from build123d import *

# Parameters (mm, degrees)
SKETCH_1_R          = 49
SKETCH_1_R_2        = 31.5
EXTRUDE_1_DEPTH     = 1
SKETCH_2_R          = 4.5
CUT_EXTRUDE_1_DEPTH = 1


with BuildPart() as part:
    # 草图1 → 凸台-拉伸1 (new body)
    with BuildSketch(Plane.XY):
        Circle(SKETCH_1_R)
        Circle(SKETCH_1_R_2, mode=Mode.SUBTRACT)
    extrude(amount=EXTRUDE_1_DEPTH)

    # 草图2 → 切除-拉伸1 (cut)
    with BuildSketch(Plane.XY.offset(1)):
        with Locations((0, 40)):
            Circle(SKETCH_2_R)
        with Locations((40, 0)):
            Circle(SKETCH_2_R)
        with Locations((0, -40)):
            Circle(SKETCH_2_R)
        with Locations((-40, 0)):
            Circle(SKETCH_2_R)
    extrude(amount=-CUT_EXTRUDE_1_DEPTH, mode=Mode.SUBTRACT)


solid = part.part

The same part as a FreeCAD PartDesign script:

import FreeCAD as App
import Part
import Sketcher
from FreeCAD import Vector

doc = App.newDocument("Part")
params = doc.addObject("Spreadsheet::Sheet", "Params")
for row, (alias, value) in enumerate([
    ("sketch1_diameter", "98 mm"),
    ("sketch1_diameter2", "63 mm"),
    ("pad1_length", "1 mm"),
    ("sketch2_diameter", "9 mm"),
    ("pocket1_length", "1 mm"),
], start=1):
    params.set(f"A{row}", alias)
    params.set(f"B{row}", "=" + value)
    params.setAlias(f"B{row}", alias)

body = doc.addObject("PartDesign::Body", "Body")

sketch1 = doc.addObject("Sketcher::SketchObject", "Sketch")
body.addObject(sketch1)
sketch1.AttachmentSupport = (doc.XY_Plane, [""])
sketch1.MapMode = "FlatFace"
sketch1.addGeometry(Part.Circle(Vector(0, 0, 0), Vector(0, 0, 1), 49), False)
sketch1.addGeometry(Part.Circle(Vector(0, 0, 0), Vector(0, 0, 1), 31.5), False)
sketch1.addConstraint(Sketcher.Constraint("Coincident", 0, 3, -1, 1))
sketch1.addConstraint(Sketcher.Constraint("Coincident", 1, 3, -1, 1))
sketch1.addConstraint(Sketcher.Constraint("Diameter", 0, 98.0))
sketch1.addConstraint(Sketcher.Constraint("Diameter", 1, 63.0))
sketch1.setExpression("Constraints[2]", "Params.sketch1_diameter")
sketch1.setExpression("Constraints[3]", "Params.sketch1_diameter2")
pad1 = doc.addObject("PartDesign::Pad", "Pad")
body.addObject(pad1)
pad1.Profile = sketch1
pad1.setExpression("Length", "Params.pad1_length")

sketch2 = doc.addObject("Sketcher::SketchObject", "Sketch001")
body.addObject(sketch2)
sketch2.AttachmentSupport = (doc.XY_Plane, [""])
sketch2.MapMode = "FlatFace"
sketch2.AttachmentOffset = App.Placement(Vector(0, 0, 1), App.Rotation())
sketch2.addGeometry(Part.Circle(Vector(0, 40, 0), Vector(0, 0, 1), 4.5), False)
sketch2.addGeometry(Part.Circle(Vector(40, 0, 0), Vector(0, 0, 1), 4.5), False)
sketch2.addGeometry(Part.Circle(Vector(0, -40, 0), Vector(0, 0, 1), 4.5), False)
sketch2.addGeometry(Part.Circle(Vector(-40, 0, 0), Vector(0, 0, 1), 4.5), False)
sketch2.addConstraint(Sketcher.Constraint("Equal", 0, 1))
sketch2.addConstraint(Sketcher.Constraint("Equal", 1, 2))
sketch2.addConstraint(Sketcher.Constraint("Equal", 2, 3))
sketch2.addConstraint(Sketcher.Constraint("Symmetric", 0, 3, 2, 3, -1, 1))
sketch2.addConstraint(Sketcher.Constraint("Symmetric", 1, 3, 3, 3, -1, 1))
sketch2.addConstraint(Sketcher.Constraint("PointOnObject", 0, 3, -2))
sketch2.addConstraint(Sketcher.Constraint("PointOnObject", 1, 3, -1))
sketch2.addConstraint(Sketcher.Constraint("Diameter", 0, 9.0))
sketch2.addConstraint(Sketcher.Constraint("DistanceY", -1, 1, 0, 3, 40.0))
sketch2.addConstraint(Sketcher.Constraint("DistanceX", -1, 1, 1, 3, 40.0))
sketch2.setExpression("Constraints[7]", "Params.sketch2_diameter")
pocket1 = doc.addObject("PartDesign::Pocket", "Pocket")
body.addObject(pocket1)
pocket1.Profile = sketch2
pocket1.setExpression("Length", "Params.pocket1_length")

doc.recompute()
